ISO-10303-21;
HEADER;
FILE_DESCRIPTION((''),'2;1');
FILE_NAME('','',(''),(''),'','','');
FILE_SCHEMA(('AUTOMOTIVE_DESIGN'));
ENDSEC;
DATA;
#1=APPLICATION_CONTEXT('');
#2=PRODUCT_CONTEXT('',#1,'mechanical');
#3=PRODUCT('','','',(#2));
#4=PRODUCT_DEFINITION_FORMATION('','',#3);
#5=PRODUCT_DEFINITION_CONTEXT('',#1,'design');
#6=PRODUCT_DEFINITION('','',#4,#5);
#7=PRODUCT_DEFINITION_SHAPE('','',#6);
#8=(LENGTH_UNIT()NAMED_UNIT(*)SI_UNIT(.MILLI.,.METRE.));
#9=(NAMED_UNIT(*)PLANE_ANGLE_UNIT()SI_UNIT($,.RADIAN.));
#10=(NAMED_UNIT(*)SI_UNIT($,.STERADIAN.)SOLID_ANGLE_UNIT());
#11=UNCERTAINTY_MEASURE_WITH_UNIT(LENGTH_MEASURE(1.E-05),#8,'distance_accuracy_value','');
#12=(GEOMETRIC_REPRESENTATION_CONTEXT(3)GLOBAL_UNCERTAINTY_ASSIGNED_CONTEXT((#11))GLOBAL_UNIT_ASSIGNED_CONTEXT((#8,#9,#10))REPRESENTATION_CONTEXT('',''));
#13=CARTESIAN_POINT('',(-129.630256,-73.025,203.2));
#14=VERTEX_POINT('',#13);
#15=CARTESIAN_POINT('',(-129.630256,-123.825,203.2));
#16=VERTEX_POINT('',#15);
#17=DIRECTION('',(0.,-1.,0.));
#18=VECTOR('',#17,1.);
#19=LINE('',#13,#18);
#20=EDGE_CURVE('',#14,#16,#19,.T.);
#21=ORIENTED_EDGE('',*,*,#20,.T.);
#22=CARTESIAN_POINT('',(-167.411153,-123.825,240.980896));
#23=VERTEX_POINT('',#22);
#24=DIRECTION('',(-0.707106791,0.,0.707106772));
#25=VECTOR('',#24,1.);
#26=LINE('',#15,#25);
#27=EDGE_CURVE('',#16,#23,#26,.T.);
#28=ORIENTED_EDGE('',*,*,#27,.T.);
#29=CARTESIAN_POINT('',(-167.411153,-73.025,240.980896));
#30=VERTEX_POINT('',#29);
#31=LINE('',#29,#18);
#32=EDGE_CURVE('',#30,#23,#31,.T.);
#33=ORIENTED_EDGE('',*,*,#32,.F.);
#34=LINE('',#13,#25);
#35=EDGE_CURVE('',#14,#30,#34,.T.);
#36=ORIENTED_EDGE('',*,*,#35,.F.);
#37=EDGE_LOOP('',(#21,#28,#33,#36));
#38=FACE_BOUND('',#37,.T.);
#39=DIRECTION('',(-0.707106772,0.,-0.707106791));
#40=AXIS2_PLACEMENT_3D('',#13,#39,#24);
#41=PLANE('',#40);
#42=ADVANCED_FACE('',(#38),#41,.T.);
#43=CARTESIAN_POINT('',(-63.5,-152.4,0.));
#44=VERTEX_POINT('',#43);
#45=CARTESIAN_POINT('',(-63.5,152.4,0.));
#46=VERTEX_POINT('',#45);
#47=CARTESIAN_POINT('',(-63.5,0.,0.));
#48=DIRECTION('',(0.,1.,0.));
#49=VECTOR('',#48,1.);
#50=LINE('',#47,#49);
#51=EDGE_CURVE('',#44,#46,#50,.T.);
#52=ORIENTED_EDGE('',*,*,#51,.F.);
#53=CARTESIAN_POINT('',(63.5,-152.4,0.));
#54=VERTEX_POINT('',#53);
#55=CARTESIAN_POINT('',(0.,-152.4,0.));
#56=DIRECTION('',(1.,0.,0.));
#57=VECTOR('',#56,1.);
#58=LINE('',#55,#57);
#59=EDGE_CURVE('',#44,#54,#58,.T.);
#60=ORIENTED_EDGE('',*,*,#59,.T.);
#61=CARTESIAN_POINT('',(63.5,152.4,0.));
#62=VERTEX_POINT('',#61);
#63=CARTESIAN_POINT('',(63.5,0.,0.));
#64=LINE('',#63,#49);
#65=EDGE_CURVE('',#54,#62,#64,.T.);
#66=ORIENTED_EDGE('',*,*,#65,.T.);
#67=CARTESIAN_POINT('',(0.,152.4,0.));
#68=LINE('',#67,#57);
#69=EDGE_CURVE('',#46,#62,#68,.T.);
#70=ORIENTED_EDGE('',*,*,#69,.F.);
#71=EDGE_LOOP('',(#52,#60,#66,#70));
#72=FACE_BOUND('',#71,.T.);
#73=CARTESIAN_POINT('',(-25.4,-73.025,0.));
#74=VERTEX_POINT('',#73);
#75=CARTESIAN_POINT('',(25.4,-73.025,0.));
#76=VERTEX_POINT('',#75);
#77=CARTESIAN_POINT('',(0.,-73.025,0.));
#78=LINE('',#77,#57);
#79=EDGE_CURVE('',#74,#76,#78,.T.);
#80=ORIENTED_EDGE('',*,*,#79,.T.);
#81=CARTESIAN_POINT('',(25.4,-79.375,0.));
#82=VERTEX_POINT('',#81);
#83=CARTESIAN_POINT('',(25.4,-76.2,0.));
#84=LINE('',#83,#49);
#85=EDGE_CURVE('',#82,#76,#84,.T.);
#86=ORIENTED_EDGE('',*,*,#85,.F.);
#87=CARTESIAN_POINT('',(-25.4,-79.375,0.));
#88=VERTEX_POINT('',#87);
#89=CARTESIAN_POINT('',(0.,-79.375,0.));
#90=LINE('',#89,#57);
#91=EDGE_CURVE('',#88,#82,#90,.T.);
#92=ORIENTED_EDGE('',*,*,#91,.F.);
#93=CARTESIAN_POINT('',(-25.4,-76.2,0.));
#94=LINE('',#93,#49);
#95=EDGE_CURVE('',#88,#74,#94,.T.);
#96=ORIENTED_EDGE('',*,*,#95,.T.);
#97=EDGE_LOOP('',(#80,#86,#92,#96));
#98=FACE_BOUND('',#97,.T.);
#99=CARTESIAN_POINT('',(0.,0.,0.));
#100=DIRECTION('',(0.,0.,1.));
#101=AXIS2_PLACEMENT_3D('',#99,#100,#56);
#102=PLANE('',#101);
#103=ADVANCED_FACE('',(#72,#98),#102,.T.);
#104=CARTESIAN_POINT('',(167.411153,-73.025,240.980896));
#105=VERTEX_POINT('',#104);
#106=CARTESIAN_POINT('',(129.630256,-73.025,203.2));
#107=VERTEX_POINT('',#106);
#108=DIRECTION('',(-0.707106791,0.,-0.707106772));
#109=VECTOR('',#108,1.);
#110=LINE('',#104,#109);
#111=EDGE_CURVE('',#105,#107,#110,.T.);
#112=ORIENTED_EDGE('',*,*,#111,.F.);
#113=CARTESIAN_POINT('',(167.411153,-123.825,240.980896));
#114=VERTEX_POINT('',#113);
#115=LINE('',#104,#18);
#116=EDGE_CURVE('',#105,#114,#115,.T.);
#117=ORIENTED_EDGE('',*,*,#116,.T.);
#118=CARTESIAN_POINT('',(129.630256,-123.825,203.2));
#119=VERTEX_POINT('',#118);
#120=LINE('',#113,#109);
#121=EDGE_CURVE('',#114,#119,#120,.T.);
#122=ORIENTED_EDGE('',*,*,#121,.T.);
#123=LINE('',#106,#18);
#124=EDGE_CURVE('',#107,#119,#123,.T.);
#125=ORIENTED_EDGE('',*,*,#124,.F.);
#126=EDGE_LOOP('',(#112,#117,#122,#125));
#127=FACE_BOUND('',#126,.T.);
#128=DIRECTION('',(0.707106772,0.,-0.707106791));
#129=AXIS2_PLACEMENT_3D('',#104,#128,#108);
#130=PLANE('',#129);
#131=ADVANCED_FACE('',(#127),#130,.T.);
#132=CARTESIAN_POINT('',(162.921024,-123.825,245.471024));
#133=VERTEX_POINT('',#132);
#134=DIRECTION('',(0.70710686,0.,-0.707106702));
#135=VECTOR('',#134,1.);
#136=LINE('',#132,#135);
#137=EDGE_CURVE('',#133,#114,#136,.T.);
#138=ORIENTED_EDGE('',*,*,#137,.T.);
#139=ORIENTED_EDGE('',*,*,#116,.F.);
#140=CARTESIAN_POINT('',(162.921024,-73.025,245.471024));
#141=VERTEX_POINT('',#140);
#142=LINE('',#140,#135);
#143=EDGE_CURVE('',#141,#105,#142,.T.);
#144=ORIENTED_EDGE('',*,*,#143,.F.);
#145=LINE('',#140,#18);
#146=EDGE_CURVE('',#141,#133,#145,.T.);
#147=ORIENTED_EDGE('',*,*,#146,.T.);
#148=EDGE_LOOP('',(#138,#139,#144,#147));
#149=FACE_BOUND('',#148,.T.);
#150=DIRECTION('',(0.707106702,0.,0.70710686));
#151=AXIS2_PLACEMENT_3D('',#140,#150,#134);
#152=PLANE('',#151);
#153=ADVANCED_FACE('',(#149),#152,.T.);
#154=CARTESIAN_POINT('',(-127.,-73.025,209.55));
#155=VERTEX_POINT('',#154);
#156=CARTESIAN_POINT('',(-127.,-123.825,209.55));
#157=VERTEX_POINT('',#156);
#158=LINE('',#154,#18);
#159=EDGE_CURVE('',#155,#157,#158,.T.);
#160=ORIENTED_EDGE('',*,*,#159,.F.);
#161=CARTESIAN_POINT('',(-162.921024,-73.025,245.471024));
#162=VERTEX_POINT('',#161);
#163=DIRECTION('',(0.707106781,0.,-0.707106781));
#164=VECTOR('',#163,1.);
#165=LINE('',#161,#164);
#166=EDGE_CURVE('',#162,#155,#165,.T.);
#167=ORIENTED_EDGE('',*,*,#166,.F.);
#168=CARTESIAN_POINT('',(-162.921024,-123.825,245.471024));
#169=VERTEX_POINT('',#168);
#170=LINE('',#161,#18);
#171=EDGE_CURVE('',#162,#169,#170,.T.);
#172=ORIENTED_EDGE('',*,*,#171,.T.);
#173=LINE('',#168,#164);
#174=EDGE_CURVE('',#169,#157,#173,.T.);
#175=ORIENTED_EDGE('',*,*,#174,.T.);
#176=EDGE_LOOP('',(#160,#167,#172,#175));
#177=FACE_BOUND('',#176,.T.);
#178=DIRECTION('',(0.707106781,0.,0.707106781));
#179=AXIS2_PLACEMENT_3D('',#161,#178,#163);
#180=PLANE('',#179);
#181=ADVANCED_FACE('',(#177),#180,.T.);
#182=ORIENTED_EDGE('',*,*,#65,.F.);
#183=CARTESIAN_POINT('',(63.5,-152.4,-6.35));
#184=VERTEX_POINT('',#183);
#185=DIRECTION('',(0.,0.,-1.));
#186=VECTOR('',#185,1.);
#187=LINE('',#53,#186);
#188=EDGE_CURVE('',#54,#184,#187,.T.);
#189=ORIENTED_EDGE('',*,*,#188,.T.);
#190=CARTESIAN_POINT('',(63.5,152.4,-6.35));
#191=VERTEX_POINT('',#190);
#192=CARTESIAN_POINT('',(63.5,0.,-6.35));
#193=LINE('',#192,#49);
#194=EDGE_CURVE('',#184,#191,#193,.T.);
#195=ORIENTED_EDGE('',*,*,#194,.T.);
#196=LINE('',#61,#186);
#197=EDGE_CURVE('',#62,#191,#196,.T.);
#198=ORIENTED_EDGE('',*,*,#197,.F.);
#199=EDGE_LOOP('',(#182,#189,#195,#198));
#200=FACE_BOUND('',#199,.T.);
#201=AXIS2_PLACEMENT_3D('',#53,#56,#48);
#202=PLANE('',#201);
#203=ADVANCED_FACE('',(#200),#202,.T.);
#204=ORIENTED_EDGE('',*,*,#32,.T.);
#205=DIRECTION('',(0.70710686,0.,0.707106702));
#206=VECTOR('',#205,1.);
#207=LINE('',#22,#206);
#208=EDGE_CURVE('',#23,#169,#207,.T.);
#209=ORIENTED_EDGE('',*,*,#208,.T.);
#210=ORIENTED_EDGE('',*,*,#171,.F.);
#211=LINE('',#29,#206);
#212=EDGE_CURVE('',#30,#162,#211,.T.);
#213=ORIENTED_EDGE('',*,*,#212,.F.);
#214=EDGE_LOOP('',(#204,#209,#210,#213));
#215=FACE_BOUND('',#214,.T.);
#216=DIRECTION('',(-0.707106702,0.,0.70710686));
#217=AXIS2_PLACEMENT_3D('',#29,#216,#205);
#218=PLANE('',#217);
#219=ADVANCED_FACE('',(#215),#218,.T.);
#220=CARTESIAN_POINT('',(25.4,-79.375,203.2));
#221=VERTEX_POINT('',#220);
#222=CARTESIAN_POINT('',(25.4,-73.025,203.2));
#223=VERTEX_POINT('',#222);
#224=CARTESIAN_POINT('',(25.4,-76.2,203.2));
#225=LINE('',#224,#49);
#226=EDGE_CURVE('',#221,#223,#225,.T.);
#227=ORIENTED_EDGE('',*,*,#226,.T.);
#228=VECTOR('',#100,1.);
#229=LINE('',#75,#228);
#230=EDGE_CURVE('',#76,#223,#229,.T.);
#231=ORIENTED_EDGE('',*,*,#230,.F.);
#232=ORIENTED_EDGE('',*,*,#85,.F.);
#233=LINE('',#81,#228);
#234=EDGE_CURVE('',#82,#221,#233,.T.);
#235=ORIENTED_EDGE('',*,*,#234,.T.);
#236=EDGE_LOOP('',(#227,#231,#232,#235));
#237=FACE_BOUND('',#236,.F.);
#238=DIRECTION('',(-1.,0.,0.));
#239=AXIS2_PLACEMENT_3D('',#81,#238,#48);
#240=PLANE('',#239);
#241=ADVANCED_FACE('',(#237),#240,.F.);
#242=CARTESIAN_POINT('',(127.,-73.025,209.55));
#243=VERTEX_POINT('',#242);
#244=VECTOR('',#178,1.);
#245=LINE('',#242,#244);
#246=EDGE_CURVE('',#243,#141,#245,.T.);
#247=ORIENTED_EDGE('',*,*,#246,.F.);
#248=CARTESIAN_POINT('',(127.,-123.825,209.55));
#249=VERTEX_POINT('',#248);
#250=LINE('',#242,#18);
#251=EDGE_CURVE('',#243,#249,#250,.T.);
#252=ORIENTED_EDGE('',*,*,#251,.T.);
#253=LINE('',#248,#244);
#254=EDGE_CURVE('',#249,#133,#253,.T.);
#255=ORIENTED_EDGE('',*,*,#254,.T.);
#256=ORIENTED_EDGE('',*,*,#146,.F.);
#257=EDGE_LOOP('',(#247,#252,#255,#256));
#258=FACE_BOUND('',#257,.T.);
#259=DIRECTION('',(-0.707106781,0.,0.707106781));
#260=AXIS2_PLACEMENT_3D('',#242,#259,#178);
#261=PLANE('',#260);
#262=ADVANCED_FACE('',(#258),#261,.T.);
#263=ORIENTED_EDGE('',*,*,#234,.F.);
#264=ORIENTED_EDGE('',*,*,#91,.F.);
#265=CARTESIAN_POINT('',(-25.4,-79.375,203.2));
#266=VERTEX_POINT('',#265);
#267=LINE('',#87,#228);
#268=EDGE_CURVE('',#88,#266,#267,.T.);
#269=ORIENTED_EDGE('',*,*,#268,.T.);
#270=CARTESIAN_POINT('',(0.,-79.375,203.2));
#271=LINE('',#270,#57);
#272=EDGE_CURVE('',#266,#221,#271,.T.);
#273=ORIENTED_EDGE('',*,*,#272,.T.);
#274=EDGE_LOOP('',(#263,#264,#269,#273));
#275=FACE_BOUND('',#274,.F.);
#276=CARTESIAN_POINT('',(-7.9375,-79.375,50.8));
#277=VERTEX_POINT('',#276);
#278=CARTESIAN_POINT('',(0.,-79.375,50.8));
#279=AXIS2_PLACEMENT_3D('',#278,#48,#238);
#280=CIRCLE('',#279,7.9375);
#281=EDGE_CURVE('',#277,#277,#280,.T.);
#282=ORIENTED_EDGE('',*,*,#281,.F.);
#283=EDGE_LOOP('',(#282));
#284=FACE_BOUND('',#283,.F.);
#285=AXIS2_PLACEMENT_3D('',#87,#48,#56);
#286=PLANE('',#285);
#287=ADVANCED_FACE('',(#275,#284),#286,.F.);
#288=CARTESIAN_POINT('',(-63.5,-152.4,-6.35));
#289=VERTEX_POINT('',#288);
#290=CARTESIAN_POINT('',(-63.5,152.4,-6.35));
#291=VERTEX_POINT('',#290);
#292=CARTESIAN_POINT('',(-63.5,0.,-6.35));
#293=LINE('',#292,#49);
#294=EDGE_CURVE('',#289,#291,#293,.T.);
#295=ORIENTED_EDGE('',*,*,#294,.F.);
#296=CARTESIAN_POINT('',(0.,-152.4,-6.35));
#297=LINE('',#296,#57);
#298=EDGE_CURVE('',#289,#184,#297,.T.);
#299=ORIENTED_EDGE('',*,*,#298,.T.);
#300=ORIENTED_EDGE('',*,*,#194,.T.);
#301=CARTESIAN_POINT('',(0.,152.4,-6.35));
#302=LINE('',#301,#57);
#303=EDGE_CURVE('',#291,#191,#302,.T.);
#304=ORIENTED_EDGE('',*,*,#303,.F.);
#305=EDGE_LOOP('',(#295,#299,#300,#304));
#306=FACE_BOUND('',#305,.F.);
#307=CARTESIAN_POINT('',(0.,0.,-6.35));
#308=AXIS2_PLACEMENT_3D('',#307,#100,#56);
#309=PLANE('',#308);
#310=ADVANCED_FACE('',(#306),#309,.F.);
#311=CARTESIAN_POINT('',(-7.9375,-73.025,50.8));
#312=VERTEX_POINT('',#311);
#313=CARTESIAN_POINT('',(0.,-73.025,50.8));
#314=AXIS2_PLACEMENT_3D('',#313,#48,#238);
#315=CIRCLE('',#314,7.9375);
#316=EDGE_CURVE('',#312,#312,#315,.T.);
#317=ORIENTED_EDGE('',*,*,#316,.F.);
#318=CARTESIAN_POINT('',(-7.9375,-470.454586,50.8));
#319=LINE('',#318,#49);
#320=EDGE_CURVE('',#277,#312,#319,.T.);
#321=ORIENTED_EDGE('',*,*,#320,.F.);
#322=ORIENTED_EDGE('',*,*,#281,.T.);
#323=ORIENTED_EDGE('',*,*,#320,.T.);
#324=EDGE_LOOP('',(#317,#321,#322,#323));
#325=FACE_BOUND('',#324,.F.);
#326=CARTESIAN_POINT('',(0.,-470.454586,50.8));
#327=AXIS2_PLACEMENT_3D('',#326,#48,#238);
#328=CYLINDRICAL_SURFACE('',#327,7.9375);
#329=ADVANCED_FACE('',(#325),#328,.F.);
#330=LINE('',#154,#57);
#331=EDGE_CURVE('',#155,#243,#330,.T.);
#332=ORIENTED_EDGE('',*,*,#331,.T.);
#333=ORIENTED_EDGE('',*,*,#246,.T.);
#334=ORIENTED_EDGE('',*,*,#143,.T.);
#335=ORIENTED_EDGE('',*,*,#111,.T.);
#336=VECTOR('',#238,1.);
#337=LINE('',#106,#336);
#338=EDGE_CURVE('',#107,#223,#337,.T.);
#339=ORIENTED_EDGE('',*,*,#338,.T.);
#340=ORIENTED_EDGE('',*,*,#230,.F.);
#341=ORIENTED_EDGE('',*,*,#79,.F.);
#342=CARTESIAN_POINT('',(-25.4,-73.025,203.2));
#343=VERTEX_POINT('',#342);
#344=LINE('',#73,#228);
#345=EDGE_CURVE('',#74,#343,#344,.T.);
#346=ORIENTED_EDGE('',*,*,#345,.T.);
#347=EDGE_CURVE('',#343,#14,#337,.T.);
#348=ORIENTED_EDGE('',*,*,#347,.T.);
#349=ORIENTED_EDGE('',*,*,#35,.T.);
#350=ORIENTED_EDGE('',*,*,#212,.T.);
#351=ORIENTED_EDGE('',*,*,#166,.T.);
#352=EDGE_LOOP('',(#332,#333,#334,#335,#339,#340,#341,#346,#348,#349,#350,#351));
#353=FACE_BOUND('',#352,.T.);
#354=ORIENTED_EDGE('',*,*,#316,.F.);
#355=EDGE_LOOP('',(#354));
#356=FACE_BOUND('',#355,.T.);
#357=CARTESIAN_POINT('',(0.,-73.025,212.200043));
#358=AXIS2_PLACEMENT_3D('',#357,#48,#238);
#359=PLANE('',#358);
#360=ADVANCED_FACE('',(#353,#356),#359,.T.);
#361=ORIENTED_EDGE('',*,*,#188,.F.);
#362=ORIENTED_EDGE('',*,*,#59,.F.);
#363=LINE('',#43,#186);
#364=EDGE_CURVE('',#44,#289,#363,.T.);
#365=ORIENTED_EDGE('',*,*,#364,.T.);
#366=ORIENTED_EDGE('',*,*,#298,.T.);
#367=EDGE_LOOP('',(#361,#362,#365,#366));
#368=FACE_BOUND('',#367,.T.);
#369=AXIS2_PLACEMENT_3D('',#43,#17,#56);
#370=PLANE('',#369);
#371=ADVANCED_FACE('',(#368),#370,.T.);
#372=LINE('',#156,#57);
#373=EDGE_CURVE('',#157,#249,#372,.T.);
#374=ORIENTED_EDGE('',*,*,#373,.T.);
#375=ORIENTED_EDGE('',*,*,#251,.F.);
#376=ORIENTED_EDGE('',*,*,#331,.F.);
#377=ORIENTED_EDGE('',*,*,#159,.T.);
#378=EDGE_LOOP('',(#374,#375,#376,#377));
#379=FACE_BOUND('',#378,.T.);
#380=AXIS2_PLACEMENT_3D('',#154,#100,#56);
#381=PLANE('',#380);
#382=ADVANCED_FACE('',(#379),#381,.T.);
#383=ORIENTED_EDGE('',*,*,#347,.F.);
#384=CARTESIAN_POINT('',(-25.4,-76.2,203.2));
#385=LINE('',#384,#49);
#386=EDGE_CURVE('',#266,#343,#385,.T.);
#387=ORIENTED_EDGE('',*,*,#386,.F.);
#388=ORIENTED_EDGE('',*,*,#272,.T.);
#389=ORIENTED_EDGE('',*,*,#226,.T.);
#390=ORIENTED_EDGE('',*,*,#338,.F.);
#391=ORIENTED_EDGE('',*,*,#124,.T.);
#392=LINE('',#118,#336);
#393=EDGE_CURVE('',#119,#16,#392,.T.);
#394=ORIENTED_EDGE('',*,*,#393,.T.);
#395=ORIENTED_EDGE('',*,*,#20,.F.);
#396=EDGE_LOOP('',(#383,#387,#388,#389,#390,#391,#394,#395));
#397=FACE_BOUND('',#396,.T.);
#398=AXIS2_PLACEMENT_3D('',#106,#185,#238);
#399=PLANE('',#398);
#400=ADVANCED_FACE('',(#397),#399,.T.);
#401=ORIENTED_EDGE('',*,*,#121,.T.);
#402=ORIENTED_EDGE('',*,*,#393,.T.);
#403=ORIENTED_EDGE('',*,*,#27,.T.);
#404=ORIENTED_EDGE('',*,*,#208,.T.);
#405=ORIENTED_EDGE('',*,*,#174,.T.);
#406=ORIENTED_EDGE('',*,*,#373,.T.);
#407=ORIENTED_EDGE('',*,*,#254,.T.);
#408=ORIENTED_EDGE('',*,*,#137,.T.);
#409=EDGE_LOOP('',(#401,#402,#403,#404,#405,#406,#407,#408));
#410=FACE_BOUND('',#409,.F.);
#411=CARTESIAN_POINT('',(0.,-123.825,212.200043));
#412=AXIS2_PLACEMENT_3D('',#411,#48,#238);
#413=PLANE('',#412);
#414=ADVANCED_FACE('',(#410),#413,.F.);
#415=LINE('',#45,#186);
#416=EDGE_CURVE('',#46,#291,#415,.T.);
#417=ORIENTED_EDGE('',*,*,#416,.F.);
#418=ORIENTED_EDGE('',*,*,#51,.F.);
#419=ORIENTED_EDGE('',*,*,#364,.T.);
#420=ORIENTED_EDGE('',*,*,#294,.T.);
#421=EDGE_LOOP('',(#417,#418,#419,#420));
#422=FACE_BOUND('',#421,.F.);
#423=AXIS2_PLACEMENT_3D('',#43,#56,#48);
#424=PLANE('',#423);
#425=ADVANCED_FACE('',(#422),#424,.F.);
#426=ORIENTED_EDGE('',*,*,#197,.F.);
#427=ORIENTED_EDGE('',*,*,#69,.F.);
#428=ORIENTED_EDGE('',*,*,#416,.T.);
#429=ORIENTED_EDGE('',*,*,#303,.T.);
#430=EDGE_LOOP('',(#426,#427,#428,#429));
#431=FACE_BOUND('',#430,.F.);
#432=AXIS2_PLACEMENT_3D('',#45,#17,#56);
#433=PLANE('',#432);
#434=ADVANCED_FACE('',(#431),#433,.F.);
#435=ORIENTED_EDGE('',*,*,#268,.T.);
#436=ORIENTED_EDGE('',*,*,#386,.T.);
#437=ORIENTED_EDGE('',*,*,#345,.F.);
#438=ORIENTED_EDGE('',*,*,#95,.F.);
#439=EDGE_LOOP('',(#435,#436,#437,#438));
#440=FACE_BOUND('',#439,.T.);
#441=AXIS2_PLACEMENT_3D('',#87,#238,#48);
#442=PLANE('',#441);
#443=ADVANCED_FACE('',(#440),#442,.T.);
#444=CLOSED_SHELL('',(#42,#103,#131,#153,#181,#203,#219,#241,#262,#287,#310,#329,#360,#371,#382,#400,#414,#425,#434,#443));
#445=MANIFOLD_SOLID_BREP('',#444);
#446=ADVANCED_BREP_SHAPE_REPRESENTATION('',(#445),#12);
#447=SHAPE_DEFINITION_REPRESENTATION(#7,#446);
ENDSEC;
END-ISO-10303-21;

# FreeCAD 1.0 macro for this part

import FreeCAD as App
import Part
import Sketcher
Q = App.Units.Quantity


def add_polygon(sketch, points):
    """Adds a closed chain of lines whose ends are joined by coincident constraints."""
    first, n = sketch.GeometryCount, len(points)
    for a, b in zip(points, points[1:] + points[:1]):
        sketch.addGeometry(Part.LineSegment(App.Vector(*a, 0), App.Vector(*b, 0)), False)
    for i in range(n):
        sketch.addConstraint(Sketcher.Constraint("Coincident", first + i, 2, first + (i + 1) % n, 1))

doc = App.newDocument("Part")
params = doc.addObject("Spreadsheet::Sheet", "Params")
for row, (alias, value) in enumerate([
    ("sketch1_width", "5 in"),
    ("sketch1_height", "12 in"),
    ("pad1_length", "0.25 in"),
    ("sketch2_width", "2 in"),
    ("sketch2_height", "0.25 in"),
    ("pad2_length", "8 in"),
    ("sketch3_diameter", "0.625 in"),
    ("hole_diameter", "0.625 in"),
    ("sketch4_width", "10 in"),
    ("sketch4_length", "2 in"),
    ("sketch4_length2", "0.25 in"),
    ("pad3_length", "2 in"),
], start=1):
    params.set(f"A{row}", alias)
    params.set(f"B{row}", "=" + value)
    params.setAlias(f"B{row}", alias)

body = doc.addObject("PartDesign::Body", "Body")

# Sketch on XY plane
sketch1 = body.newObject("Sketcher::SketchObject", "Sketch")
sketch1.AttachmentSupport = (doc.getObject("XY_Plane"), [""])
sketch1.MapMode = "FlatFace"
add_polygon(sketch1, [(-64, 152), (-64, -152), (64, -152), (64, 152)])  # lines 0-3
sketch1.addConstraint([
    Sketcher.Constraint("Vertical", 0),
    Sketcher.Constraint("Horizontal", 1),
    Sketcher.Constraint("Vertical", 2),
    Sketcher.Constraint("Horizontal", 3),
    Sketcher.Constraint("Symmetric", 0, 2, 2, 2, -1, 1),
    Sketcher.Constraint("DistanceX", 1, 1, 1, 2, Q("5 in")),
    Sketcher.Constraint("DistanceY", 0, 2, 0, 1, Q("12 in")),
])
sketch1.setExpression("Constraints[9]", "Params.sketch1_width")
sketch1.setExpression("Constraints[10]", "Params.sketch1_height")
pad1 = body.newObject("PartDesign::Pad", "Pad")
pad1.Profile = sketch1
pad1.setExpression("Length", "Params.pad1_length")
pad1.Reversed = True

# Sketch on XY plane
sketch2 = body.newObject("Sketcher::SketchObject", "Sketch001")
sketch2.AttachmentSupport = (doc.getObject("XY_Plane"), [""])
sketch2.MapMode = "FlatFace"
add_polygon(sketch2, [(-25, -73), (-25, -79), (25, -79), (25, -73)])  # lines 0-3
sketch2.addConstraint([
    Sketcher.Constraint("Vertical", 0),
    Sketcher.Constraint("Horizontal", 1),
    Sketcher.Constraint("Vertical", 2),
    Sketcher.Constraint("Horizontal", 3),
    Sketcher.Constraint("DistanceX", 1, 1, 1, 2, Q("2 in")),
    Sketcher.Constraint("DistanceX", 0, 2, -1, 1, Q("1 in")),
    Sketcher.Constraint("DistanceY", 0, 2, 0, 1, Q("0.25 in")),
    Sketcher.Constraint("DistanceY", 0, 2, -1, 1, Q("3.125 in")),
])
sketch2.setExpression("Constraints[8]", "Params.sketch2_width")
sketch2.setExpression("Constraints[10]", "Params.sketch2_height")
pad2 = body.newObject("PartDesign::Pad", "Pad001")
pad2.Profile = sketch2
pad2.setExpression("Length", "Params.pad2_length")

# Sketch on XZ plane
sketch3 = body.newObject("Sketcher::SketchObject", "Sketch002")
sketch3.AttachmentSupport = (doc.getObject("XZ_Plane"), [""])
sketch3.MapMode = "FlatFace"
sketch3.AttachmentOffset = App.Placement(App.Vector(0, 0, 3.125 * 25.4), App.Rotation())
sketch3.addGeometry(Part.Circle(App.Vector(0, 51, 0), App.Vector(0, 0, 1), 8), False)
sketch3.addConstraint([
    Sketcher.Constraint("PointOnObject", 0, 3, -2),
    Sketcher.Constraint("Diameter", 0, Q("0.625 in")),
    Sketcher.Constraint("DistanceY", -1, 1, 0, 3, Q("2 in")),
])
sketch3.setExpression("Constraints[1]", "Params.sketch3_diameter")
doc.recompute()
hole = body.newObject("PartDesign::Hole", "Hole")
hole.Profile = sketch3
hole.ThreadType = "None"
hole.setExpression("Diameter", "Params.hole_diameter")
hole.DepthType = "ThroughAll"

# Sketch on XZ plane
sketch4 = body.newObject("Sketcher::SketchObject", "Sketch003")
sketch4.AttachmentSupport = (doc.getObject("XZ_Plane"), [""])
sketch4.MapMode = "FlatFace"
sketch4.AttachmentOffset = App.Placement(App.Vector(0, 0, 2.875 * 25.4), App.Rotation())
add_polygon(sketch4, [(130, 203), (-130, 203), (-167, 241), (-163, 245), (-127, 210), (127, 210), (163, 245), (167, 241)])  # lines 0-7
sketch4.addConstraint([
    Sketcher.Constraint("Horizontal", 0),
    Sketcher.Constraint("Horizontal", 4),
    Sketcher.Constraint("Symmetric", 2, 2, 5, 2, -2),
    Sketcher.Constraint("Symmetric", 1, 2, 6, 2, -2),
    Sketcher.Constraint("Perpendicular", 1, 2),
    Sketcher.Constraint("Perpendicular", 2, 3),
    Sketcher.Constraint("Perpendicular", 3, 5),
    Sketcher.Constraint("Perpendicular", 5, 6),
    Sketcher.Constraint("Perpendicular", 6, 7),
    Sketcher.Constraint("DistanceX", 4, 1, 4, 2, Q("10 in")),
    Sketcher.Constraint("Distance", 3, Q("2 in")),
    Sketcher.Constraint("DistanceY", -1, 1, 0, 2, Q("8 in")),
    Sketcher.Constraint("Distance", 2, Q("0.25 in")),
    Sketcher.Constraint("DistanceY", -1, 1, 3, 2, Q("8.25 in")),
])
sketch4.setExpression("Constraints[17]", "Params.sketch4_width")
sketch4.setExpression("Constraints[18]", "Params.sketch4_length")
sketch4.setExpression("Constraints[20]", "Params.sketch4_length2")
pad3 = body.newObject("PartDesign::Pad", "Pad002")
pad3.Profile = sketch4
pad3.setExpression("Length", "Params.pad3_length")

doc.recompute()
